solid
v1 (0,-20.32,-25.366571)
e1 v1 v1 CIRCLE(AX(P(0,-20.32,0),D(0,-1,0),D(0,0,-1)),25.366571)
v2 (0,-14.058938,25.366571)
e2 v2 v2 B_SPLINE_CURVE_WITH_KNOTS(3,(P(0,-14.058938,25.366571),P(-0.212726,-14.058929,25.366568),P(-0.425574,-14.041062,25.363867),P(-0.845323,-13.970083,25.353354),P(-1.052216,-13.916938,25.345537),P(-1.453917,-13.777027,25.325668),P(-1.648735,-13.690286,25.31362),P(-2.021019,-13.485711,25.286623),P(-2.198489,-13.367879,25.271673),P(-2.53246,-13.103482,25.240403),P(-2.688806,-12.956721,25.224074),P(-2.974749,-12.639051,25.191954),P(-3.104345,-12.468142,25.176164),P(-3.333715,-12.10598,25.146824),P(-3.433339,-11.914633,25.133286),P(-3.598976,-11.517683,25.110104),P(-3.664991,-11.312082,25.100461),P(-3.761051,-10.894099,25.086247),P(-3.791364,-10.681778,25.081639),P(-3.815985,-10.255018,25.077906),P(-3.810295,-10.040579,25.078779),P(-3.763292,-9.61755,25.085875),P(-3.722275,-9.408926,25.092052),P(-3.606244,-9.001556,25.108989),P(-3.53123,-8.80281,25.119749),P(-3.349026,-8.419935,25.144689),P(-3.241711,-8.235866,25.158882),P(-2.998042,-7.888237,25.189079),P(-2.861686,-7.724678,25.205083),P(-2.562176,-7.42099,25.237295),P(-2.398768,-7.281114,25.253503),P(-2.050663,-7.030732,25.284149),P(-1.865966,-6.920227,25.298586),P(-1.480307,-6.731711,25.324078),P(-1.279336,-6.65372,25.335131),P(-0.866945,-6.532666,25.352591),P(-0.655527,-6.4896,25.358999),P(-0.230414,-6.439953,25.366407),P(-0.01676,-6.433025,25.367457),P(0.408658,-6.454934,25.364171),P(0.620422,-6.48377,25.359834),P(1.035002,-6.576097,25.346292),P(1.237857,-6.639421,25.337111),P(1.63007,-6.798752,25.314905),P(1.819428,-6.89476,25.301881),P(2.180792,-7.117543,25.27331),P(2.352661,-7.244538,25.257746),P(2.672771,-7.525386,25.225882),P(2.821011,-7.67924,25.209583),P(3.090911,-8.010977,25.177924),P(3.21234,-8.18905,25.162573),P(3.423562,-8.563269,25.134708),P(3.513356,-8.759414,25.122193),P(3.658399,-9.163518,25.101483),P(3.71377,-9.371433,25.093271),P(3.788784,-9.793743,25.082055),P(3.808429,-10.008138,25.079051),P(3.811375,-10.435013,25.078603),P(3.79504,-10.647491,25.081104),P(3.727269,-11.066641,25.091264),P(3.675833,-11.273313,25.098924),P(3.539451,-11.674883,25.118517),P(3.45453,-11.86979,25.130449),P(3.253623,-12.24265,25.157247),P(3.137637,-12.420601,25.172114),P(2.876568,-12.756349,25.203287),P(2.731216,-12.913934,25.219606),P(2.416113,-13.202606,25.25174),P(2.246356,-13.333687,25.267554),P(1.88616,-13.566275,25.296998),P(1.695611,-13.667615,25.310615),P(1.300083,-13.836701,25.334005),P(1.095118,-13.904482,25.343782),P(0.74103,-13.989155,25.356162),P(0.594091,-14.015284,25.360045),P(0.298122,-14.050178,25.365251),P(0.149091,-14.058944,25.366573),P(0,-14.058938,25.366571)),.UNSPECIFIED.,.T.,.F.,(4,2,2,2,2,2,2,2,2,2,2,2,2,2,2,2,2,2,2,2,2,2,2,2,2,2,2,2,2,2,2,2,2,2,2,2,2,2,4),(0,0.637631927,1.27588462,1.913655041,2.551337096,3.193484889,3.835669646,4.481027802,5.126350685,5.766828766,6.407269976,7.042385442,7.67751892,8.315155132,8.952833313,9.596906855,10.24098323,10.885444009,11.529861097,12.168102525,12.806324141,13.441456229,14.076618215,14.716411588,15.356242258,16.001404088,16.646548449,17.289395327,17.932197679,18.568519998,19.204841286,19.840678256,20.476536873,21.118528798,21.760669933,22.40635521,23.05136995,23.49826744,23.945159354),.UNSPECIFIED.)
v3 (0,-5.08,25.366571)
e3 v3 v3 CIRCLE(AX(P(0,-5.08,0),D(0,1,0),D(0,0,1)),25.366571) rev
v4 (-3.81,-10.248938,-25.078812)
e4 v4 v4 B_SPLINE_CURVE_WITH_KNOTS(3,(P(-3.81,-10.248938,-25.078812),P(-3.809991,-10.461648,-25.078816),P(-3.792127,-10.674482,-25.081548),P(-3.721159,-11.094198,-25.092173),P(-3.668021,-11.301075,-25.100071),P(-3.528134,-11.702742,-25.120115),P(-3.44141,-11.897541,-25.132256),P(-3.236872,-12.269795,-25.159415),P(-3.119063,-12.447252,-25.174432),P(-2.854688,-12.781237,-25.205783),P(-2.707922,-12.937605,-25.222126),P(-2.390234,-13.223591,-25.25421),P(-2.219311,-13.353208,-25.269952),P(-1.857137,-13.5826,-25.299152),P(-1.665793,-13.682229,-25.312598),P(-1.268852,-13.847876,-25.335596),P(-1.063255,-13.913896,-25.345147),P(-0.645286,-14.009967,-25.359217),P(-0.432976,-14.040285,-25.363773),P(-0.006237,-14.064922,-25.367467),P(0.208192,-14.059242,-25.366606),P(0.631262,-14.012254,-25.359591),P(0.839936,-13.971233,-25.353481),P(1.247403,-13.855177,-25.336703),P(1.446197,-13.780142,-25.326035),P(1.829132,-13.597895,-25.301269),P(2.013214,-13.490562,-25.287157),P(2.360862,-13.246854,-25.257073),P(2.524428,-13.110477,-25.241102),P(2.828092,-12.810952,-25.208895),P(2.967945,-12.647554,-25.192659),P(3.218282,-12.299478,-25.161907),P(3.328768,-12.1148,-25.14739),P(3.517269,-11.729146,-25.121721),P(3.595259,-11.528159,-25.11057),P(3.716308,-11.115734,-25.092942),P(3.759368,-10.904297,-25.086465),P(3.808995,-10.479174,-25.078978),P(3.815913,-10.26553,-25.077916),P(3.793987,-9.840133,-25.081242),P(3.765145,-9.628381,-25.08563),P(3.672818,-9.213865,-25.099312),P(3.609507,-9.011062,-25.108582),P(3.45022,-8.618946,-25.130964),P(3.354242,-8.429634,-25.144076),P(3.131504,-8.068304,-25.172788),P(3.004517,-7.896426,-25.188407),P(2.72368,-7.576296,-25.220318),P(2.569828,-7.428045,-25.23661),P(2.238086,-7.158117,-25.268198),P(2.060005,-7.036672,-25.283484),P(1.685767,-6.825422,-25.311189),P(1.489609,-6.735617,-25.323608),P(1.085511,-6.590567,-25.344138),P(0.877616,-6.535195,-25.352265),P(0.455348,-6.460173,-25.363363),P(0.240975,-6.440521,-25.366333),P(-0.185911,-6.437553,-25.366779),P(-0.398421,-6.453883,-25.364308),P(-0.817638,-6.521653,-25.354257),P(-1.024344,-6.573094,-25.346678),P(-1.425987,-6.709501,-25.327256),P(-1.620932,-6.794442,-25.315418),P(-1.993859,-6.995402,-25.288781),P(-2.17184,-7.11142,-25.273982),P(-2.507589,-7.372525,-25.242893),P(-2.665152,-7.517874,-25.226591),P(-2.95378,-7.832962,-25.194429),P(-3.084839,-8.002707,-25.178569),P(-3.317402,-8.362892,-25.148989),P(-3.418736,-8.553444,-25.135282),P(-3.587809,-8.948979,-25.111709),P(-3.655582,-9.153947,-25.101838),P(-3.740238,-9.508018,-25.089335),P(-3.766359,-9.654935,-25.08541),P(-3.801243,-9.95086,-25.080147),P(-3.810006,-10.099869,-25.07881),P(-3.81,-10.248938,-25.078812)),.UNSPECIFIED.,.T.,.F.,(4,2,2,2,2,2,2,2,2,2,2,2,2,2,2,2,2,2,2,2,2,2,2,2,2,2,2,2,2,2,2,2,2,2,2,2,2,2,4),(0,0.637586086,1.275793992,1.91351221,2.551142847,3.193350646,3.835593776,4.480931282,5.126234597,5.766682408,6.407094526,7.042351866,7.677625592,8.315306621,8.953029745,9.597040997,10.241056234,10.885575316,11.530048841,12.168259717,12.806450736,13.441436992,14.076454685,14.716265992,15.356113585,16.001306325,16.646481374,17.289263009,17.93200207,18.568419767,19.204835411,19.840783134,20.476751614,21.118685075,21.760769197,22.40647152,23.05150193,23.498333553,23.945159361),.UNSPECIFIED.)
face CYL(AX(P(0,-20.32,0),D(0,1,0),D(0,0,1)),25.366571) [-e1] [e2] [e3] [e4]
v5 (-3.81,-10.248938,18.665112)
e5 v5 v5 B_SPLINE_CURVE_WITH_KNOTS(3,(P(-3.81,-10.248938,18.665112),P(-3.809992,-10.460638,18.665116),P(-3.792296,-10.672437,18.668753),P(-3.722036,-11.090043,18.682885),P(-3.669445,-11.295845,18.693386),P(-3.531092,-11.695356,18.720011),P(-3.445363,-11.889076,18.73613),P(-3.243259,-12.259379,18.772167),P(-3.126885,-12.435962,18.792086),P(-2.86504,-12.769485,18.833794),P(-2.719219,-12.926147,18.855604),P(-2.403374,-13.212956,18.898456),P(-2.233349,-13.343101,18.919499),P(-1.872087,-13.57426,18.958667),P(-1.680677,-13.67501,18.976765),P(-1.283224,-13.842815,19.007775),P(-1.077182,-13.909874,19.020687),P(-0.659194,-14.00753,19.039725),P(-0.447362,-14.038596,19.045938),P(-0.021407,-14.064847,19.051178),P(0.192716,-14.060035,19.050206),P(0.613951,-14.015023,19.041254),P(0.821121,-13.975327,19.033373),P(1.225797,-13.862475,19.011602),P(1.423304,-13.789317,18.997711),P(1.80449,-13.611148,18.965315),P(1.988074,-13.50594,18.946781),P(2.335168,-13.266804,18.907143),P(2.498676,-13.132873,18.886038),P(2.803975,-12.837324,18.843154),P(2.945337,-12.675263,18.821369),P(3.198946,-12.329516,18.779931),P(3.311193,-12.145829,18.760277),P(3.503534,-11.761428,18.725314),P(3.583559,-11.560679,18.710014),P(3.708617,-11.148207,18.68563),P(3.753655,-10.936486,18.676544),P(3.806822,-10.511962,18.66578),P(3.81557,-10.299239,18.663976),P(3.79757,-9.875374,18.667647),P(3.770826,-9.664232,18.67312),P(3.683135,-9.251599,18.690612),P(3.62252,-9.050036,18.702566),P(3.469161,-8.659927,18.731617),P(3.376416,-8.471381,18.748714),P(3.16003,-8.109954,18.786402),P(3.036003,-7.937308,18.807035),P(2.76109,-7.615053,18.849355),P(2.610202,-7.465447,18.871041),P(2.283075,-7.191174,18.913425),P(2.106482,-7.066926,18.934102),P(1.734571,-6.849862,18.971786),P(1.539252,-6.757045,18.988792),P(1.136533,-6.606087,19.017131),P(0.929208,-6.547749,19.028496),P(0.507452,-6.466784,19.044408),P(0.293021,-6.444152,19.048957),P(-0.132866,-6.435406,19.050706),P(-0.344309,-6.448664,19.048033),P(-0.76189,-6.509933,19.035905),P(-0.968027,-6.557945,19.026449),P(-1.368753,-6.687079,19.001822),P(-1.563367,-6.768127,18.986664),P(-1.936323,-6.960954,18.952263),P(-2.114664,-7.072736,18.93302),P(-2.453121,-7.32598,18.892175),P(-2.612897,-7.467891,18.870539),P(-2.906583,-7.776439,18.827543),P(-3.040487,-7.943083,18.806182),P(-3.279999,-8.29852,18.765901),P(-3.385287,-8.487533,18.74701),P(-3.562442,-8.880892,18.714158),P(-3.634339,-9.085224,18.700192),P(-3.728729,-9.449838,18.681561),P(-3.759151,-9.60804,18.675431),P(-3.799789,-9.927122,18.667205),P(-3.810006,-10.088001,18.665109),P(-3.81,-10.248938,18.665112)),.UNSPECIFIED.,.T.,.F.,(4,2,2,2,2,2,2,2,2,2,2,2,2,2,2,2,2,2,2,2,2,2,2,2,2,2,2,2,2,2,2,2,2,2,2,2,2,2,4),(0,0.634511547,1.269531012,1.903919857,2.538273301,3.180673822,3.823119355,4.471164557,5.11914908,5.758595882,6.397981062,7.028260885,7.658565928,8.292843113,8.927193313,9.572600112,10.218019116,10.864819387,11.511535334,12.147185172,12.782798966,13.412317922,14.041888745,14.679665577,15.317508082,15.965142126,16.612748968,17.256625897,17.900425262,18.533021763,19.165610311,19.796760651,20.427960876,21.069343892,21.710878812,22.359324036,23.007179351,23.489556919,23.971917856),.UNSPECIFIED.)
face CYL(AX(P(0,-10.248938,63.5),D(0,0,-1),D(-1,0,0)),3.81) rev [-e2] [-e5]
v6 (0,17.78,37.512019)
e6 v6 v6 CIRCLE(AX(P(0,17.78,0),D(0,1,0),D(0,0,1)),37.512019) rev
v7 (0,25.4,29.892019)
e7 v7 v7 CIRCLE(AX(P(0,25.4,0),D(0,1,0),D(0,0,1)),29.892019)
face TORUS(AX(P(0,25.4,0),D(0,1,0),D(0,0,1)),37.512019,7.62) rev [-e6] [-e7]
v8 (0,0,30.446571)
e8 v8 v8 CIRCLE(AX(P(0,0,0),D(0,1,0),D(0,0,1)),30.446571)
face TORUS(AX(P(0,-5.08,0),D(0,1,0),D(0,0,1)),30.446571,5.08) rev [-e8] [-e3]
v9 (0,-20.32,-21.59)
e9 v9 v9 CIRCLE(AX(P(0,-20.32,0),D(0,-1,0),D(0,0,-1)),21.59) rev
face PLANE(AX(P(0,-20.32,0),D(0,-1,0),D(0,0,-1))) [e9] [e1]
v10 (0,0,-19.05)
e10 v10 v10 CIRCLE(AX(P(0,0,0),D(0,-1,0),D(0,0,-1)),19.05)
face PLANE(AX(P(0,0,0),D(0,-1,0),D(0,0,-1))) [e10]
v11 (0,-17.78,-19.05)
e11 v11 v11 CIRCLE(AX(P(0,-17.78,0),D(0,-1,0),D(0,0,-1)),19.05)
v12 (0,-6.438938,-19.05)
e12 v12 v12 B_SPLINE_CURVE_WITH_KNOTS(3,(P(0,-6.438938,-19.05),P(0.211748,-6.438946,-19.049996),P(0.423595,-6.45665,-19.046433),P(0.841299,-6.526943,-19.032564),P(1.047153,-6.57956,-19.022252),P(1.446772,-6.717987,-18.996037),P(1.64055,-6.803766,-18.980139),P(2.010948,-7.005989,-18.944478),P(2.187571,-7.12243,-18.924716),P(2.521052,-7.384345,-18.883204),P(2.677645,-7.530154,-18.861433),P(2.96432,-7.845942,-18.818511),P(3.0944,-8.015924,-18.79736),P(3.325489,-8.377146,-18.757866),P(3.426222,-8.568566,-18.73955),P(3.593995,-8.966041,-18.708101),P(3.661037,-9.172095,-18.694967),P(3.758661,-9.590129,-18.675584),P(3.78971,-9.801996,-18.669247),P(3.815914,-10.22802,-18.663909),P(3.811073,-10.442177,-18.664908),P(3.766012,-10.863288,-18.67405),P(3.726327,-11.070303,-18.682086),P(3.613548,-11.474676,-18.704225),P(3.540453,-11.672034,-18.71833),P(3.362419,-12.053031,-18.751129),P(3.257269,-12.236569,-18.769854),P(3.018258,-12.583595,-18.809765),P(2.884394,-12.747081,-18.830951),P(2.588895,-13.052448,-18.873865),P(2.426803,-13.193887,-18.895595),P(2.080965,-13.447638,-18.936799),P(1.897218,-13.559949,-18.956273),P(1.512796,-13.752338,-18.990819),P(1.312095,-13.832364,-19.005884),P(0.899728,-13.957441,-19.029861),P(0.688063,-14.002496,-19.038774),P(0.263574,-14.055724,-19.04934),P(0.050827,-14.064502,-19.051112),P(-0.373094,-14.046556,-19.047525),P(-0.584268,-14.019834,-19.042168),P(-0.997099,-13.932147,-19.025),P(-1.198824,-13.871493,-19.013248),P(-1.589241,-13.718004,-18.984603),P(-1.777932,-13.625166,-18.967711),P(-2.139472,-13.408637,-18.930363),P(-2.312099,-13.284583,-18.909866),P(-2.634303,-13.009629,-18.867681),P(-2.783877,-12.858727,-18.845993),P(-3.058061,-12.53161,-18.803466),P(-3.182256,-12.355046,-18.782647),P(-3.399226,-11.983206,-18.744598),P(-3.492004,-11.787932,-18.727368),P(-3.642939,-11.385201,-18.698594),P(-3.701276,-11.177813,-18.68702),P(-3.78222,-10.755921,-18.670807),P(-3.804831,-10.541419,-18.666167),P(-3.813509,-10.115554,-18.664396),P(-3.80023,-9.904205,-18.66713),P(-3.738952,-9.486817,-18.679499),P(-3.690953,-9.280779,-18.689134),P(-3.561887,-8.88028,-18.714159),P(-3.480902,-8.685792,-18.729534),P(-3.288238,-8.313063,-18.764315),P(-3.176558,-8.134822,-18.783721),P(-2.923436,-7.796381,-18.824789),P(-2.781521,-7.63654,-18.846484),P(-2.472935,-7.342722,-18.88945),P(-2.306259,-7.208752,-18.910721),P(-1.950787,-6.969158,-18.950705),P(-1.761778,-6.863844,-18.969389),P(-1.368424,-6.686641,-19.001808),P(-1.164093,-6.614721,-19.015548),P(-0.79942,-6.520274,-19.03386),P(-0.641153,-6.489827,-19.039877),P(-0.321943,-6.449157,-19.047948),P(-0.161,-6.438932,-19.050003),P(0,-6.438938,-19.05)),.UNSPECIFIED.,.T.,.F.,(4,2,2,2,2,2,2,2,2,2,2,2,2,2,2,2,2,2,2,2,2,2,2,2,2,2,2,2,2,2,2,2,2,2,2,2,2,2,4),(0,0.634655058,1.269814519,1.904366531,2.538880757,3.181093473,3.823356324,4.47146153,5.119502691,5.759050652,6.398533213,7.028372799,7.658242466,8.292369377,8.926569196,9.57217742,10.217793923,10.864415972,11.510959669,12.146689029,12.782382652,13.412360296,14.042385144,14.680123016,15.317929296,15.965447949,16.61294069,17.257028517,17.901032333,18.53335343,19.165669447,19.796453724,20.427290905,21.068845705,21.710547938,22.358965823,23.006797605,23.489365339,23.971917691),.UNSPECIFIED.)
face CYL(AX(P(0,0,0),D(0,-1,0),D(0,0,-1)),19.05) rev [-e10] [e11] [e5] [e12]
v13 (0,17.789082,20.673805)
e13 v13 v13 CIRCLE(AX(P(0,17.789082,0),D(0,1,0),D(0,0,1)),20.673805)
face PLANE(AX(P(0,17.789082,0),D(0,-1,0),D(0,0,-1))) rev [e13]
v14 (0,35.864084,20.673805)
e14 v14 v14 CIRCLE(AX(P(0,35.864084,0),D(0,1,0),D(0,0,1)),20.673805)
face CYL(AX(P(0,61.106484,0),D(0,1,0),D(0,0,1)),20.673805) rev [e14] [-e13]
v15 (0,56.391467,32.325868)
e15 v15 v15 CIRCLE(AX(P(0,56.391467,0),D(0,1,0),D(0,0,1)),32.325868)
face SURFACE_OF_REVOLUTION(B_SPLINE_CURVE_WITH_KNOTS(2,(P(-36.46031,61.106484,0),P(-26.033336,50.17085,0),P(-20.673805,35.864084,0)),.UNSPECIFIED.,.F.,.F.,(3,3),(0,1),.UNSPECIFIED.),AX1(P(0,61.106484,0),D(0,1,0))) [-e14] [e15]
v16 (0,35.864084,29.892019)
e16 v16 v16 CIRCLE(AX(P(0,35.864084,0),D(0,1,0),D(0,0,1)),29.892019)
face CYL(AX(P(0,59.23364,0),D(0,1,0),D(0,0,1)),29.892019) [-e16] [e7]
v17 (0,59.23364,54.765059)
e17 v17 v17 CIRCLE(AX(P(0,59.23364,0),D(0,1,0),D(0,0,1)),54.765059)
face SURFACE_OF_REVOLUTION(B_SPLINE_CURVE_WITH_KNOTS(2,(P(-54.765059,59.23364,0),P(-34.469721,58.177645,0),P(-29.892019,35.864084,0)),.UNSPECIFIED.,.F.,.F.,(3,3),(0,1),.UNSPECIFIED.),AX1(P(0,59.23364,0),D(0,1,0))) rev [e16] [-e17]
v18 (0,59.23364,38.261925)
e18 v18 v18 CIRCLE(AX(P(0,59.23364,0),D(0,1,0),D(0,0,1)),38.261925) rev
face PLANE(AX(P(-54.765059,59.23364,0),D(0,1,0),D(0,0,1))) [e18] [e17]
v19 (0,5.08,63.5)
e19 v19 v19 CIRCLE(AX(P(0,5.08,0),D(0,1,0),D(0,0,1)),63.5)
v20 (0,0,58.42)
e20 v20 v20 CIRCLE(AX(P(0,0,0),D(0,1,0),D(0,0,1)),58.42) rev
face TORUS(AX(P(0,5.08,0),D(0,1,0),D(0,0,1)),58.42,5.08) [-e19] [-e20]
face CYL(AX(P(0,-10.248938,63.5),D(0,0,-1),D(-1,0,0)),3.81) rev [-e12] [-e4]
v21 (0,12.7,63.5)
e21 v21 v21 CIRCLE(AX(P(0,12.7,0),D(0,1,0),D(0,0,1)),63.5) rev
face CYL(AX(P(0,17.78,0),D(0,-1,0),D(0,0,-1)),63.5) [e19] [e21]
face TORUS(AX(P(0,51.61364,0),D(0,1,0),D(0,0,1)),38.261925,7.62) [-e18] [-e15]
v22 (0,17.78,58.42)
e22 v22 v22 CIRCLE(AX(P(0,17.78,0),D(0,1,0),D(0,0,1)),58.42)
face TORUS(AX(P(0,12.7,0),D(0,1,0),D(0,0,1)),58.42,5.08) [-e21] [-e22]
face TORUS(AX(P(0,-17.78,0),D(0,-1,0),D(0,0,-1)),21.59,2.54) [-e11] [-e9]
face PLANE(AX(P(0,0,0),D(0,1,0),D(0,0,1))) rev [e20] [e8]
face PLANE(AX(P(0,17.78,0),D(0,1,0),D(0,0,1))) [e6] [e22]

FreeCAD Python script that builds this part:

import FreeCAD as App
import Part
import Sketcher
Q = App.Units.Quantity


def edges_at(feature, points):
    """Names of the edges that pass closest to the given points."""
    edges = feature.Shape.Edges
    near = lambda p: min(range(len(edges)), key=lambda i: edges[i].distToShape(Part.Vertex(*p))[0])
    return sorted({f"Edge{near(p) + 1}" for p in points})

doc = App.newDocument("Part")
params = doc.addObject("Spreadsheet::Sheet", "Params")
for row, (alias, value) in enumerate([
    ("sketch1_diameter", "5 in"),
    ("pad1_length", "0.7 in"),
    ("pad2_length", "0.8 in"),
    ("sketch3_diameter", "1.5 in"),
    ("pocket1_length", "0.8 in"),
    ("sketch4_diameter", "0.3 in"),
    ("fillet_radius", "0.2 in"),
    ("fillet2_radius", "0.1 in"),
    ("fillet3_radius", "0.2 in"),
    ("revolution_angle", "360 deg"),
    ("groove_angle", "360 deg"),
    ("fillet4_radius", "0.3 in"),
    ("fillet5_radius", "0.3 in"),
], start=1):
    params.set(f"A{row}", alias)
    params.set(f"B{row}", "=" + value)
    params.setAlias(f"B{row}", alias)

body = doc.addObject("PartDesign::Body", "Body")

sketch1 = body.newObject("Sketcher::SketchObject", "Sketch")
sketch1.AttachmentSupport = (doc.getObject("XZ_Plane"), [""])
sketch1.MapMode = "FlatFace"
sketch1.addGeometry(Part.Circle(App.Vector(0, 0, 0), App.Vector(0, 0, 1), 64), False)
sketch1.addConstraint([
    Sketcher.Constraint("Coincident", 0, 3, -1, 1),
    Sketcher.Constraint("Diameter", 0, Q("5 in")),
])
sketch1.setExpression("Constraints[1]", "Params.sketch1_diameter")
pad1 = body.newObject("PartDesign::Pad", "Pad")
pad1.Profile = sketch1
pad1.setExpression("Length", "Params.pad1_length")
pad1.Reversed = True

sketch2 = body.newObject("Sketcher::SketchObject", "Sketch001")
sketch2.AttachmentSupport = (doc.getObject("XZ_Plane"), [""])
sketch2.MapMode = "FlatFace"
sketch2.addGeometry(Part.Circle(App.Vector(0, 0, 0), App.Vector(0, 0, 1), 25), False)
sketch2.addConstraint([
    Sketcher.Constraint("Coincident", 0, 3, -1, 1),
    Sketcher.Constraint("Diameter", 0, 50.733142),
])
pad2 = body.newObject("PartDesign::Pad", "Pad001")
pad2.Profile = sketch2
pad2.setExpression("Length", "Params.pad2_length")

sketch3 = body.newObject("Sketcher::SketchObject", "Sketch002")
sketch3.AttachmentSupport = (doc.getObject("XZ_Plane"), [""])
sketch3.MapMode = "FlatFace"
sketch3.AttachmentOffset = App.Placement(App.Vector(0, 0, 0.8 * 25.4), App.Rotation())
sketch3.addGeometry(Part.Circle(App.Vector(0, 0, 0), App.Vector(0, 0, 1), 19), False)
sketch3.addConstraint([
    Sketcher.Constraint("Coincident", 0, 3, -1, 1),
    Sketcher.Constraint("Diameter", 0, Q("1.5 in")),
])
sketch3.setExpression("Constraints[1]", "Params.sketch3_diameter")
pocket1 = body.newObject("PartDesign::Pocket", "Pocket")
pocket1.Profile = sketch3
pocket1.setExpression("Length", "Params.pocket1_length")

sketch4 = body.newObject("Sketcher::SketchObject", "Sketch003")
sketch4.AttachmentSupport = (doc.getObject("XY_Plane"), [""])
sketch4.MapMode = "FlatFace"
sketch4.AttachmentOffset = App.Placement(App.Vector(0, 0, -25.366571), App.Rotation())
sketch4.addGeometry(Part.Circle(App.Vector(0, -10.2, 0), App.Vector(0, 0, 1), 3.8), False)
sketch4.addConstraint([
    Sketcher.Constraint("PointOnObject", 0, 3, -2),
    Sketcher.Constraint("Diameter", 0, Q("0.3 in")),
    Sketcher.Constraint("DistanceY", 0, 3, -1, 1, 10.248938),
])
sketch4.setExpression("Constraints[1]", "Params.sketch4_diameter")
pocket2 = body.newObject("PartDesign::Pocket", "Pocket001")
pocket2.Profile = sketch4
pocket2.Type = "ThroughAll"
pocket2.Midplane = True
doc.recompute()

fillet = body.newObject("PartDesign::Fillet", "Fillet")
fillet.Base = (pocket2, edges_at(pocket2, [(-63.5, 0, 0), (-25.367, 0, 0)]))
fillet.setExpression("Radius", "Params.fillet_radius")
doc.recompute()

fillet2 = body.newObject("PartDesign::Fillet", "Fillet001")
fillet2.Base = (fillet, edges_at(fillet, [(-19.05, -20.32, 0)]))
fillet2.setExpression("Radius", "Params.fillet2_radius")
doc.recompute()

fillet3 = body.newObject("PartDesign::Fillet", "Fillet002")
fillet3.Base = (fillet2, edges_at(fillet2, [(-63.5, 17.78, 0)]))
fillet3.setExpression("Radius", "Params.fillet3_radius")

sketch5 = body.newObject("Sketcher::SketchObject", "Sketch004")
sketch5.AttachmentSupport = (doc.getObject("XY_Plane"), [""])
sketch5.MapMode = "FlatFace"
sketch5.addGeometry([
    Part.LineSegment(App.Vector(-29.892019, 35.864084, 0), App.Vector(-29.892019, 17.78, 0)),
    Part.LineSegment(App.Vector(-29.892019, 17.78, 0), App.Vector(0, 17.78, 0)),
    Part.LineSegment(App.Vector(0, 17.78, 0), App.Vector(0, 59.23364, 0)),
    Part.LineSegment(App.Vector(0, 59.23364, 0), App.Vector(-54.765059, 59.23364, 0)),
    Part.BSplineCurve([App.Vector(-29.892019, 35.864084, 0), App.Vector(-34.469721, 58.177645, 0), App.Vector(-54.765059, 59.23364, 0)], [3, 3], [0, 1], False, 2, [1, 1, 1], False),
], False)
sketch5.addConstraint([
    Sketcher.Constraint("Block", 4),
    Sketcher.Constraint("Coincident", 0, 2, 1, 1),
    Sketcher.Constraint("Coincident", 1, 2, 2, 1),
    Sketcher.Constraint("Coincident", 2, 2, 3, 1),
    Sketcher.Constraint("Coincident", 3, 2, 4, 2),
    Sketcher.Constraint("Coincident", 4, 1, 0, 1),
    Sketcher.Constraint("Vertical", 0),
    Sketcher.Constraint("Horizontal", 1),
    Sketcher.Constraint("Vertical", 2),
    Sketcher.Constraint("Horizontal", 3),
    Sketcher.Constraint("PointOnObject", 1, 2, -2),
    Sketcher.Constraint("DistanceY", -1, 1, 0, 2, Q("0.7 in")),
])
revolution = body.newObject("PartDesign::Revolution", "Revolution")
revolution.Profile = sketch5
revolution.ReferenceAxis = (sketch5, ["V_Axis"])
revolution.setExpression("Angle", "Params.revolution_angle")

sketch6 = body.newObject("Sketcher::SketchObject", "Sketch005")
sketch6.AttachmentSupport = (doc.getObject("XY_Plane"), [""])
sketch6.MapMode = "FlatFace"
sketch6.addGeometry([
    Part.LineSegment(App.Vector(-20.673805, 35.864084, 0), App.Vector(-20.673805, 17.789082, 0)),
    Part.LineSegment(App.Vector(-20.673805, 17.789082, 0), App.Vector(0, 17.789082, 0)),
    Part.LineSegment(App.Vector(0, 17.789082, 0), App.Vector(0, 61.106484, 0)),
    Part.LineSegment(App.Vector(0, 61.106484, 0), App.Vector(-36.46031, 61.106484, 0)),
    Part.BSplineCurve([App.Vector(-20.673805, 35.864084, 0), App.Vector(-26.033336, 50.17085, 0), App.Vector(-36.46031, 61.106484, 0)], [3, 3], [0, 1], False, 2, [1, 1, 1], False),
], False)
sketch6.addConstraint([
    Sketcher.Constraint("Block", 4),
    Sketcher.Constraint("Coincident", 0, 2, 1, 1),
    Sketcher.Constraint("Coincident", 1, 2, 2, 1),
    Sketcher.Constraint("Coincident", 2, 2, 3, 1),
    Sketcher.Constraint("Coincident", 3, 2, 4, 2),
    Sketcher.Constraint("Coincident", 4, 1, 0, 1),
    Sketcher.Constraint("Vertical", 0),
    Sketcher.Constraint("Horizontal", 1),
    Sketcher.Constraint("Vertical", 2),
    Sketcher.Constraint("Horizontal", 3),
    Sketcher.Constraint("PointOnObject", 1, 2, -2),
    Sketcher.Constraint("DistanceY", 0, 2, 0, 1, 18.075001),
])
groove = body.newObject("PartDesign::Groove", "Groove")
groove.Profile = sketch6
groove.ReferenceAxis = (sketch6, ["V_Axis"])
groove.setExpression("Angle", "Params.groove_angle")
doc.recompute()

fillet4 = body.newObject("PartDesign::Fillet", "Fillet003")
fillet4.Base = (groove, edges_at(groove, [(29.892, 17.78, 0)]))
fillet4.setExpression("Radius", "Params.fillet4_radius")
doc.recompute()

fillet5 = body.newObject("PartDesign::Fillet", "Fillet004")
fillet5.Base = (fillet4, edges_at(fillet4, [(34.734, 59.234, 0)]))
fillet5.setExpression("Radius", "Params.fillet5_radius")

doc.recompute()
